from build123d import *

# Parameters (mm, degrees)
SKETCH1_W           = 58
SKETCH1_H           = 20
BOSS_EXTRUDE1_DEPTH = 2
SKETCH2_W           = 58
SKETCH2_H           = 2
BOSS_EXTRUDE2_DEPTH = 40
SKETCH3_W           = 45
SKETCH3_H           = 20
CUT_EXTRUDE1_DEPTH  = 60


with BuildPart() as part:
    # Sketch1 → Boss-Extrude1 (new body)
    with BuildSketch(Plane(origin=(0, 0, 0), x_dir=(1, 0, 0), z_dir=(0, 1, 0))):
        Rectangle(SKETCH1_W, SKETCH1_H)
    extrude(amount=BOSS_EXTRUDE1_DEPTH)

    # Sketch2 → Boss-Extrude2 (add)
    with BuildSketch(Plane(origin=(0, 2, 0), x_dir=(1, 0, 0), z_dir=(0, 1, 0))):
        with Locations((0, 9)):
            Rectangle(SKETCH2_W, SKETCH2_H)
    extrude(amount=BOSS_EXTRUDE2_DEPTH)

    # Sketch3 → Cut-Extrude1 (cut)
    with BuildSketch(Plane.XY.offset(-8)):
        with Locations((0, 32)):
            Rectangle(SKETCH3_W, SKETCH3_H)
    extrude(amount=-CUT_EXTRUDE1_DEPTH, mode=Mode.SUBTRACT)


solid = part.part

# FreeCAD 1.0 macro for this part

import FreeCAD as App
import Part
import Sketcher


def add_polygon(sketch, points):
    """Adds a closed chain of lines whose ends are joined by coincident constraints."""
    first, n = sketch.GeometryCount, len(points)
    for a, b in zip(points, points[1:] + points[:1]):
        sketch.addGeometry(Part.LineSegment(App.Vector(*a, 0), App.Vector(*b, 0)), False)
    for i in range(n):
        sketch.addConstraint(Sketcher.Constraint("Coincident", first + i, 2, first + (i + 1) % n, 1))

doc = App.newDocument("Part")
body = doc.addObject("PartDesign::Body", "Body")

# Sketch on XZ plane
sketch1 = body.newObject("Sketcher::SketchObject", "Sketch")
sketch1.AttachmentSupport = (doc.getObject("XZ_Plane"), [""])
sketch1.MapMode = "FlatFace"
add_polygon(sketch1, [(-29, -10), (-29, 10), (29, 10), (29, -10)])  # lines 0-3
sketch1.addConstraint([
    Sketcher.Constraint("Vertical", 0),
    Sketcher.Constraint("Horizontal", 1),
    Sketcher.Constraint("Vertical", 2),
    Sketcher.Constraint("Horizontal", 3),
    Sketcher.Constraint("Symmetric", 0, 2, 2, 2, -1, 1),
    Sketcher.Constraint("DistanceX", 1, 1, 1, 2, 58.0),
    Sketcher.Constraint("DistanceY", 0, 1, 0, 2, 20.0),
])
pad1 = body.newObject("PartDesign::Pad", "Pad")
pad1.Profile = sketch1
pad1.Length = 2
pad1.Reversed = True

# Sketch on XZ plane
sketch2 = body.newObject("Sketcher::SketchObject", "Sketch001")
sketch2.AttachmentSupport = (doc.getObject("XZ_Plane"), [""])
sketch2.MapMode = "FlatFace"
sketch2.AttachmentOffset = App.Placement(App.Vector(0, 0, -2), App.Rotation())
add_polygon(sketch2, [(-29, -10), (-29, -8), (29, -8), (29, -10)])  # lines 0-3
sketch2.addConstraint([
    Sketcher.Constraint("Vertical", 0),
    Sketcher.Constraint("Horizontal", 1),
    Sketcher.Constraint("Vertical", 2),
    Sketcher.Constraint("Horizontal", 3),
    Sketcher.Constraint("DistanceX", 1, 1, 1, 2, 58.0),
    Sketcher.Constraint("DistanceY", 0, 1, 0, 2, 2.0),
    Sketcher.Constraint("DistanceX", 0, 2, -1, 1, 29.0),
    Sketcher.Constraint("DistanceY", 0, 2, -1, 1, 8.0),
])
pad2 = body.newObject("PartDesign::Pad", "Pad001")
pad2.Profile = sketch2
pad2.Length = 40
pad2.Reversed = True

# Sketch on XY plane
sketch3 = body.newObject("Sketcher::SketchObject", "Sketch002")
sketch3.AttachmentSupport = (doc.getObject("XY_Plane"), [""])
sketch3.MapMode = "FlatFace"
sketch3.AttachmentOffset = App.Placement(App.Vector(0, 0, -8), App.Rotation())
add_polygon(sketch3, [(-22, 42), (-22, 22), (22, 22), (22, 42)])  # lines 0-3
sketch3.addConstraint([
    Sketcher.Constraint("Vertical", 0),
    Sketcher.Constraint("Horizontal", 1),
    Sketcher.Constraint("Vertical", 2),
    Sketcher.Constraint("Horizontal", 3),
    Sketcher.Constraint("DistanceX", 1, 1, 1, 2, 45.0),
    Sketcher.Constraint("DistanceY", 0, 2, 0, 1, 20.0),
    Sketcher.Constraint("DistanceY", -1, 1, 0, 2, 22.0),
    Sketcher.Constraint("DistanceX", 0, 2, -1, 1, 22.5),
])
pocket1 = body.newObject("PartDesign::Pocket", "Pocket")
pocket1.Profile = sketch3
pocket1.Length = 60

doc.recompute()
